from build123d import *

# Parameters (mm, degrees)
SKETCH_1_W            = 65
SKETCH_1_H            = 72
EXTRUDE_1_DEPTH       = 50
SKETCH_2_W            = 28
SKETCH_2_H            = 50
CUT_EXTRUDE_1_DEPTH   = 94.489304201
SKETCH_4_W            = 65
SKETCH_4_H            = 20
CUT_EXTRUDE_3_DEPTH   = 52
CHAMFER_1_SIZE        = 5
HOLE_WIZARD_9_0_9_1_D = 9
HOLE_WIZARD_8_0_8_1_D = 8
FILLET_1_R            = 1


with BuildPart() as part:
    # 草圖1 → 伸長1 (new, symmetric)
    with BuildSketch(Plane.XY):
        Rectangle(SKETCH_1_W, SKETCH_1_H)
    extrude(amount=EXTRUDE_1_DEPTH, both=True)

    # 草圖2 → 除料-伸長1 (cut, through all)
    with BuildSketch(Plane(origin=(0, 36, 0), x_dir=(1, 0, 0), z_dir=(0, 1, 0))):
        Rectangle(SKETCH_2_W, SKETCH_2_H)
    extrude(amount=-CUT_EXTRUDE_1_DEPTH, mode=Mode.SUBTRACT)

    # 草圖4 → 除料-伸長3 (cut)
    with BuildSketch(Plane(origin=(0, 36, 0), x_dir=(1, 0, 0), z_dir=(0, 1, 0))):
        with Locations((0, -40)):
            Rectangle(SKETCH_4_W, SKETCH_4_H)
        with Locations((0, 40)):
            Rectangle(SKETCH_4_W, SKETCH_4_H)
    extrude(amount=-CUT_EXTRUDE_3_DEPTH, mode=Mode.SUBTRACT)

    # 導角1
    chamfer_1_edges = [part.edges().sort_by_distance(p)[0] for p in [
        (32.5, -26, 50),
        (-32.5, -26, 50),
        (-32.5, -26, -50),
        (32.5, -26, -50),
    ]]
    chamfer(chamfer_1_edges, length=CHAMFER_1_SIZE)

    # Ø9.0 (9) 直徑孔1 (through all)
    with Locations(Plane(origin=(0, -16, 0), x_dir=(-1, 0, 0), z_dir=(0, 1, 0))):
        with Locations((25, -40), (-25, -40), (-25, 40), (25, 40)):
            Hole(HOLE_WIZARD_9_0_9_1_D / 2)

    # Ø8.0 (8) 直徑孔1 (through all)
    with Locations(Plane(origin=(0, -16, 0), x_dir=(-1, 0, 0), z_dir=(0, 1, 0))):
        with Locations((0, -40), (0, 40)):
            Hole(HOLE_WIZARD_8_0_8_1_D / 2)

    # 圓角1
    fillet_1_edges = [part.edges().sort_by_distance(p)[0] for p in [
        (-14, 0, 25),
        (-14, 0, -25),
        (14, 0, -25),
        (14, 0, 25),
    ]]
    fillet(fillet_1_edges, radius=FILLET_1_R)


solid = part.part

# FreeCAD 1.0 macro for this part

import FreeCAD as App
import Part
import Sketcher
from FreeCAD import Vector
Q = App.Units.Quantity


def edges_at(feature, points):
    """Names of the edges that pass closest to the given points."""
    edges = feature.Shape.Edges
    near = lambda p: min(range(len(edges)), key=lambda i: edges[i].distToShape(Part.Vertex(*p))[0])
    return sorted({f"Edge{near(p) + 1}" for p in points})


def add_polygon(sketch, points):
    """Adds a closed chain of lines whose ends are joined by coincident constraints."""
    first, n = sketch.GeometryCount, len(points)
    for a, b in zip(points, points[1:] + points[:1]):
        sketch.addGeometry(Part.LineSegment(App.Vector(*a, 0), App.Vector(*b, 0)), False)
    for i in range(n):
        sketch.addConstraint(Sketcher.Constraint("Coincident", first + i, 2, first + (i + 1) % n, 1))

doc = App.newDocument("Part")
body = doc.addObject("PartDesign::Body", "Body")

sketch1 = doc.addObject("Sketcher::SketchObject", "Sketch")
body.addObject(sketch1)
sketch1.AttachmentSupport = (doc.XY_Plane, [""])
sketch1.MapMode = "FlatFace"
add_polygon(sketch1, [(-32, 36), (-32, -36), (32, -36), (32, 36)])
sketch1.addConstraint(Sketcher.Constraint("Vertical", 0))
sketch1.addConstraint(Sketcher.Constraint("Horizontal", 1))
sketch1.addConstraint(Sketcher.Constraint("Vertical", 2))
sketch1.addConstraint(Sketcher.Constraint("Horizontal", 3))
sketch1.addConstraint(Sketcher.Constraint("Symmetric", 0, 2, 2, 2, -1, 1))
sketch1.addConstraint(Sketcher.Constraint("DistanceX", 1, 1, 1, 2, Q("65 mm")))
sketch1.addConstraint(Sketcher.Constraint("DistanceY", 0, 2, 0, 1, Q("72 mm")))
pad1 = doc.addObject("PartDesign::Pad", "Pad")
body.addObject(pad1)
pad1.Profile = sketch1
pad1.Length = 100
pad1.Midplane = True

sketch2 = doc.addObject("Sketcher::SketchObject", "Sketch001")
body.addObject(sketch2)
sketch2.AttachmentSupport = (doc.XZ_Plane, [""])
sketch2.MapMode = "FlatFace"
sketch2.AttachmentOffset = App.Placement(Vector(0, 0, -36), App.Rotation())
add_polygon(sketch2, [(-14, -25), (-14, 25), (14, 25), (14, -25)])
sketch2.addConstraint(Sketcher.Constraint("Vertical", 0))
sketch2.addConstraint(Sketcher.Constraint("Horizontal", 1))
sketch2.addConstraint(Sketcher.Constraint("Vertical", 2))
sketch2.addConstraint(Sketcher.Constraint("Horizontal", 3))
sketch2.addConstraint(Sketcher.Constraint("Symmetric", 0, 2, 2, 2, -1, 1))
sketch2.addConstraint(Sketcher.Constraint("DistanceX", 1, 1, 1, 2, Q("28 mm")))
sketch2.addConstraint(Sketcher.Constraint("DistanceY", 0, 1, 0, 2, Q("50 mm")))
pocket1 = doc.addObject("PartDesign::Pocket", "Pocket")
body.addObject(pocket1)
pocket1.Profile = sketch2
pocket1.Type = "ThroughAll"
pocket1.Reversed = True

sketch3 = doc.addObject("Sketcher::SketchObject", "Sketch002")
body.addObject(sketch3)
sketch3.AttachmentSupport = (doc.XZ_Plane, [""])
sketch3.MapMode = "FlatFace"
sketch3.AttachmentOffset = App.Placement(Vector(0, 0, -36), App.Rotation())
add_polygon(sketch3, [(-32, 30), (-32, 50), (32, 50), (32, 30)])
add_polygon(sketch3, [(-32, -50), (-32, -30), (32, -30), (32, -50)])
sketch3.addConstraint(Sketcher.Constraint("Vertical", 0))
sketch3.addConstraint(Sketcher.Constraint("Horizontal", 1))
sketch3.addConstraint(Sketcher.Constraint("Vertical", 2))
sketch3.addConstraint(Sketcher.Constraint("Horizontal", 3))
sketch3.addConstraint(Sketcher.Constraint("Vertical", 4))
sketch3.addConstraint(Sketcher.Constraint("Horizontal", 5))
sketch3.addConstraint(Sketcher.Constraint("Vertical", 6))
sketch3.addConstraint(Sketcher.Constraint("Horizontal", 7))
sketch3.addConstraint(Sketcher.Constraint("Symmetric", 2, 2, 4, 2, -1, 1))
sketch3.addConstraint(Sketcher.Constraint("Symmetric", 0, 2, 6, 2, -1, 1))
sketch3.addConstraint(Sketcher.Constraint("Vertical", 3, 2, 4, 2))
sketch3.addConstraint(Sketcher.Constraint("DistanceX", 1, 1, 1, 2, Q("65 mm")))
sketch3.addConstraint(Sketcher.Constraint("DistanceY", 0, 1, 0, 2, Q("20 mm")))
sketch3.addConstraint(Sketcher.Constraint("DistanceY", -1, 1, 0, 2, Q("50 mm")))
pocket2 = doc.addObject("PartDesign::Pocket", "Pocket001")
body.addObject(pocket2)
pocket2.Profile = sketch3
pocket2.Length = 52
pocket2.Reversed = True
doc.recompute()

chamfer = doc.addObject("PartDesign::Chamfer", "Chamfer")
body.addObject(chamfer)
chamfer.Base = (pocket2, edges_at(pocket2, [
    (32.5, -26, 50),
    (-32.5, -26, 50),
    (-32.5, -26, -50),
    (32.5, -26, -50),
]))
chamfer.Size = 5

sketch4 = doc.addObject("Sketcher::SketchObject", "Sketch003")
body.addObject(sketch4)
sketch4.AttachmentSupport = (doc.XZ_Plane, [""])
sketch4.MapMode = "FlatFace"
sketch4.AttachmentOffset = App.Placement(Vector(0, 0, 16), App.Rotation())
sketch4.addGeometry(Part.Circle(Vector(-25, -40, 0), Vector(0, 0, 1), 4.5), False)
sketch4.addGeometry(Part.Circle(Vector(25, -40, 0), Vector(0, 0, 1), 4.5), False)
sketch4.addGeometry(Part.Circle(Vector(25, 40, 0), Vector(0, 0, 1), 4.5), False)
sketch4.addGeometry(Part.Circle(Vector(-25, 40, 0), Vector(0, 0, 1), 4.5), False)
sketch4.addConstraint(Sketcher.Constraint("Equal", 0, 1))
sketch4.addConstraint(Sketcher.Constraint("Equal", 1, 2))
sketch4.addConstraint(Sketcher.Constraint("Equal", 2, 3))
sketch4.addConstraint(Sketcher.Constraint("Symmetric", 0, 3, 2, 3, -1, 1))
sketch4.addConstraint(Sketcher.Constraint("Symmetric", 1, 3, 3, 3, -1, 1))
sketch4.addConstraint(Sketcher.Constraint("Symmetric", 0, 3, 1, 3, -2))
sketch4.addConstraint(Sketcher.Constraint("Diameter", 0, Q("9 mm")))
sketch4.addConstraint(Sketcher.Constraint("DistanceX", 0, 3, -1, 1, Q("25 mm")))
sketch4.addConstraint(Sketcher.Constraint("DistanceY", 0, 3, -1, 1, Q("40 mm")))
doc.recompute()
hole = doc.addObject("PartDesign::Hole", "Hole")
body.addObject(hole)
hole.Profile = sketch4
hole.ThreadType = "None"
hole.Diameter = 9
hole.DepthType = "ThroughAll"
hole.Reversed = True

sketch5 = doc.addObject("Sketcher::SketchObject", "Sketch004")
body.addObject(sketch5)
sketch5.AttachmentSupport = (doc.XZ_Plane, [""])
sketch5.MapMode = "FlatFace"
sketch5.AttachmentOffset = App.Placement(Vector(0, 0, 16), App.Rotation())
sketch5.addGeometry(Part.Circle(Vector(0, -40, 0), Vector(0, 0, 1), 4), False)
sketch5.addGeometry(Part.Circle(Vector(0, 40, 0), Vector(0, 0, 1), 4), False)
sketch5.addConstraint(Sketcher.Constraint("Equal", 0, 1))
sketch5.addConstraint(Sketcher.Constraint("Symmetric", 0, 3, 1, 3, -1, 1))
sketch5.addConstraint(Sketcher.Constraint("PointOnObject", 0, 3, -2))
sketch5.addConstraint(Sketcher.Constraint("Diameter", 0, Q("8 mm")))
sketch5.addConstraint(Sketcher.Constraint("DistanceY", 0, 3, -1, 1, Q("40 mm")))
doc.recompute()
hole2 = doc.addObject("PartDesign::Hole", "Hole001")
body.addObject(hole2)
hole2.Profile = sketch5
hole2.ThreadType = "None"
hole2.Diameter = 8
hole2.DepthType = "ThroughAll"
hole2.Reversed = True
doc.recompute()

fillet = doc.addObject("PartDesign::Fillet", "Fillet")
body.addObject(fillet)
fillet.Base = (hole2, edges_at(hole2, [
    (-14, 0, 25),
    (-14, 0, -25),
    (14, 0, -25),
    (14, 0, 25),
]))
fillet.Radius = 1

doc.recompute()
